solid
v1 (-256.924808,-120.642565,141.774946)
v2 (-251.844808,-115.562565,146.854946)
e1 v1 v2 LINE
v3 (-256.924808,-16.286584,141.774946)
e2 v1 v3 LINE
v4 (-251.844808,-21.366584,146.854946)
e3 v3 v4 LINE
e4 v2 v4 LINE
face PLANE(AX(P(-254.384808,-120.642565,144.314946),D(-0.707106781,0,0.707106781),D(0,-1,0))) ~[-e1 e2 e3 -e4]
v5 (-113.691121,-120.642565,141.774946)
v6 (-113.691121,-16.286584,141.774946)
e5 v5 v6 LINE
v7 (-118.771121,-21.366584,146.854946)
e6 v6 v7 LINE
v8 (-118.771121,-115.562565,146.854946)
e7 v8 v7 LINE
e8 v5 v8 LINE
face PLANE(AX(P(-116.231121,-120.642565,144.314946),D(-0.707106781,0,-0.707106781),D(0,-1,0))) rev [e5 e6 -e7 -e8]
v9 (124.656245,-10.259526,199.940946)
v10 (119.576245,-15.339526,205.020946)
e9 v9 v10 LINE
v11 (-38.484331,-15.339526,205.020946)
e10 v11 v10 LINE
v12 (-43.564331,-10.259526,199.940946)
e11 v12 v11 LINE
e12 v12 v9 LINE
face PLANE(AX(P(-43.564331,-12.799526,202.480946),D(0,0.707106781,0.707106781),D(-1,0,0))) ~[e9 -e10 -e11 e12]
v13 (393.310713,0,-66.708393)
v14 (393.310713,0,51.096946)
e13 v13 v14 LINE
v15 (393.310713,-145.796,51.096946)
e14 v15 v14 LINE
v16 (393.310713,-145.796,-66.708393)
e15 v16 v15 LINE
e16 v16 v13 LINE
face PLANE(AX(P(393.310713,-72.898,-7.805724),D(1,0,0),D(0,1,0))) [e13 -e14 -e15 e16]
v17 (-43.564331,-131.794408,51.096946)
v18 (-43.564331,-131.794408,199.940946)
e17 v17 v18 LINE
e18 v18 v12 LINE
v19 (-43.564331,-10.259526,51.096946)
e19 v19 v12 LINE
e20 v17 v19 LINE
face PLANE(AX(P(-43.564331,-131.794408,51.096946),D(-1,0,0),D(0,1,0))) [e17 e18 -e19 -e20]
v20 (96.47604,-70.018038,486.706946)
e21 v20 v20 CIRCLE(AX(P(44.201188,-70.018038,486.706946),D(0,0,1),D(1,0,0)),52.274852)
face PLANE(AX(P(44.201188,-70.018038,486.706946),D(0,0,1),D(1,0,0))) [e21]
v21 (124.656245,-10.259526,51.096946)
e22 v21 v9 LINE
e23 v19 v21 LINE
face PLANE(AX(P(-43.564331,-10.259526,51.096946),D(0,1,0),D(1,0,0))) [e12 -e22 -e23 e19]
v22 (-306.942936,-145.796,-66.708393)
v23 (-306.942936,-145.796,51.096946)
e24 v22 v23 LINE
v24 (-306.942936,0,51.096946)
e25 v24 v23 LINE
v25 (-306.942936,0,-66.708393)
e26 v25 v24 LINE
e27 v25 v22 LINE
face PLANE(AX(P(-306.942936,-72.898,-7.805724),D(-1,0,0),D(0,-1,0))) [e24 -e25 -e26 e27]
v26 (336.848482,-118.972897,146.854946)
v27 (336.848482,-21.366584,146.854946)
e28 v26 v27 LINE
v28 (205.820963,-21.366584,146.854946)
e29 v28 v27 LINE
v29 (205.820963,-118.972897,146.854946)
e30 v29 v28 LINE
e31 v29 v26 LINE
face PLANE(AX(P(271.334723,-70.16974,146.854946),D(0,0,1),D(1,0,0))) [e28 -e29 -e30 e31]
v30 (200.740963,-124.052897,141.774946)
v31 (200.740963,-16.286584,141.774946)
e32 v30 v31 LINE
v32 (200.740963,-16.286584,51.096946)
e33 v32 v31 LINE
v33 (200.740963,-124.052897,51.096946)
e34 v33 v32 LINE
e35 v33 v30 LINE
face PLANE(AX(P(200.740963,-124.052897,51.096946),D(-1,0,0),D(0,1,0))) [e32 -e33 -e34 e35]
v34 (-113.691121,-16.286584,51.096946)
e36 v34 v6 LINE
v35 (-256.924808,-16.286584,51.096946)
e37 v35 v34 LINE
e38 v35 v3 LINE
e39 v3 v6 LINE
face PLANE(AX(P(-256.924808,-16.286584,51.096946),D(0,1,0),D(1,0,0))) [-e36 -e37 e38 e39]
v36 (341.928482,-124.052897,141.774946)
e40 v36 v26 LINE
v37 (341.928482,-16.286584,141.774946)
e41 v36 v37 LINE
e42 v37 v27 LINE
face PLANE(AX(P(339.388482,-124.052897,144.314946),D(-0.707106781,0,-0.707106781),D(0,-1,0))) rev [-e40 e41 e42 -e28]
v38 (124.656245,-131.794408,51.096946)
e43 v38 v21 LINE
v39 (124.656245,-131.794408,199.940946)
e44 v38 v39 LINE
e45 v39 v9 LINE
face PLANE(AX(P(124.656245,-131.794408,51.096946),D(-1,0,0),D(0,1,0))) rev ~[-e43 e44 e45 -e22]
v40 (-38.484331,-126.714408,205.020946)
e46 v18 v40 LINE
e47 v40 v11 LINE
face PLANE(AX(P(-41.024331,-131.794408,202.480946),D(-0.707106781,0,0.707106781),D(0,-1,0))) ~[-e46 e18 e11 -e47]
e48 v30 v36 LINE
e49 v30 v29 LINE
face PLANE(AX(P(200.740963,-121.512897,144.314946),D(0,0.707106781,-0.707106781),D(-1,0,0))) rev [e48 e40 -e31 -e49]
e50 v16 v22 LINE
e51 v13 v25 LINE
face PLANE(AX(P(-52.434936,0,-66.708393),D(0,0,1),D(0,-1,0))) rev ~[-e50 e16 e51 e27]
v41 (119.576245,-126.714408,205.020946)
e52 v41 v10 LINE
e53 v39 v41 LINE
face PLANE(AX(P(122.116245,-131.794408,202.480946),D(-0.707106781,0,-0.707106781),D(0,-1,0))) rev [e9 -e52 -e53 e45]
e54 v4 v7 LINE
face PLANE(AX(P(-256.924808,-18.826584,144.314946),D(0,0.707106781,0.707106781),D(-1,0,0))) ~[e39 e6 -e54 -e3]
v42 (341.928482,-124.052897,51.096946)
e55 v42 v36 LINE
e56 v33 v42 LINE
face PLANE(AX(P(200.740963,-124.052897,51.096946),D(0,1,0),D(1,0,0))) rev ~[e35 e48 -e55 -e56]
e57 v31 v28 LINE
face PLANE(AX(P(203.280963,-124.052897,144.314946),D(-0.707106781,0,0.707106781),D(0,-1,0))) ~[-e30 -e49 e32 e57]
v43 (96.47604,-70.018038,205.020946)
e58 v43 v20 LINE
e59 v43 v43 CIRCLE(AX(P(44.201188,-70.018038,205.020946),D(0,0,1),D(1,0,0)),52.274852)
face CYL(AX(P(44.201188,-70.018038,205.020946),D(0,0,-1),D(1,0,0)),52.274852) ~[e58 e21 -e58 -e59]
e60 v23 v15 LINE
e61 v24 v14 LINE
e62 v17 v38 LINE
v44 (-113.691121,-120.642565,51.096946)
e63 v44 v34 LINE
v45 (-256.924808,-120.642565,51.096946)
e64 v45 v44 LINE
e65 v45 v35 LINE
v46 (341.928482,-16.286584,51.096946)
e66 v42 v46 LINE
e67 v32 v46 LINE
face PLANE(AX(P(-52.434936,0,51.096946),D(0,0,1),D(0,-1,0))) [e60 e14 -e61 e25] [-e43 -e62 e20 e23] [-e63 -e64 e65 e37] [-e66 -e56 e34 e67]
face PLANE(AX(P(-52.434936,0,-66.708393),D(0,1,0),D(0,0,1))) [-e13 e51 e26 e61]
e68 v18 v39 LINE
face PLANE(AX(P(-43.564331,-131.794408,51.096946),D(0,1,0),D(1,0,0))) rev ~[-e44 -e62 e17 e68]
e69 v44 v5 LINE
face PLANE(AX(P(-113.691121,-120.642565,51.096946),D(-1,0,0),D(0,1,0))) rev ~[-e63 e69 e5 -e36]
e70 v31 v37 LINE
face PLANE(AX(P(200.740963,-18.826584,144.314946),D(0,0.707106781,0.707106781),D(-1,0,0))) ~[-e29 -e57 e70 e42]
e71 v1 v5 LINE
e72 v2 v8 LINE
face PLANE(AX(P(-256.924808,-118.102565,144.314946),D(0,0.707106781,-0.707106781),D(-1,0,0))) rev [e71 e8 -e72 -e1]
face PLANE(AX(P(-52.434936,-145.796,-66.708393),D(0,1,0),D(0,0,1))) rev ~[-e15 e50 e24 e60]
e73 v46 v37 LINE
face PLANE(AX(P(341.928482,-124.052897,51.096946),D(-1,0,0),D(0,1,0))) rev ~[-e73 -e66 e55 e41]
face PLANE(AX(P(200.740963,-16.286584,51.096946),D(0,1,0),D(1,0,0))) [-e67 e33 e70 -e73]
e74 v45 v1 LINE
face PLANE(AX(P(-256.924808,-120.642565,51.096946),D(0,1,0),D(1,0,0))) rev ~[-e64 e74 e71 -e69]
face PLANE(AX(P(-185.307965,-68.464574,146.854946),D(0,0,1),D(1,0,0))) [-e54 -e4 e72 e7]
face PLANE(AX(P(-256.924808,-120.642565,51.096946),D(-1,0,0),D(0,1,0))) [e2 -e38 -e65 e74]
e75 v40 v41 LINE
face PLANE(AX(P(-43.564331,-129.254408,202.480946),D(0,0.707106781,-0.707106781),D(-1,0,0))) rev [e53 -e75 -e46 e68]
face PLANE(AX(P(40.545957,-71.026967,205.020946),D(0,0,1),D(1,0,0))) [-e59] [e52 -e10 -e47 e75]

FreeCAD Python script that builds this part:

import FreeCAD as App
import Part
import Sketcher

V = App.Vector
Q = App.Units.Quantity


def edges_at(feature, points):
    """Names of the edges that pass closest to the given points."""
    edges = feature.Shape.Edges
    near = lambda p: min(range(len(edges)), key=lambda i: edges[i].distToShape(Part.Vertex(*p))[0])
    return sorted({f"Edge{near(p) + 1}" for p in points})

doc = App.newDocument("Part")
params = doc.addObject("Spreadsheet::Sheet", "Params")
for row, (alias, value) in enumerate([
    ("pad1_length", "5.74 in"),
    ("sketch2_width", "5.74 in"),
    ("pad2_length", "3.54 in"),
    ("pad3_length", "6.06 in"),
    ("chamfer_size", "0.2 in"),
    ("sketch4_width", "5.74 in"),
    ("pad4_length", "10.02 in"),
    ("sketch5_width", "5.74 in"),
    ("pad5_length", "10.02 in"),
    ("pad6_length", "3.77 in"),
    ("chamfer2_size", "0.2 in"),
    ("pad7_length", "11.09 in"),
], start=1):
    params.set(f"A{row}", alias)
    params.set(f"B{row}", "=" + value)
    params.setAlias(f"B{row}", alias)

body = doc.addObject("PartDesign::Body", "Body")

# Sketch on XZ plane
sketch1 = doc.addObject("Sketcher::SketchObject", "Sketch")
body.addObject(sketch1)
sketch1.AttachmentSupport = (doc.XZ_Plane, [""])
sketch1.MapMode = "FlatFace"
sketch1.addGeometry(Part.LineSegment(V(-52.434936, 51.096946, 0), V(-52.434936, -66.708393, 0)), False)
sketch1.addGeometry(Part.LineSegment(V(-52.434936, -66.708393, 0), V(48.886713, -66.708393, 0)), False)
sketch1.addGeometry(Part.LineSegment(V(48.886713, -66.708393, 0), V(48.886713, 51.096946, 0)), False)
sketch1.addGeometry(Part.LineSegment(V(48.886713, 51.096946, 0), V(-52.434936, 51.096946, 0)), False)
sketch1.addConstraint(Sketcher.Constraint("Coincident", 0, 2, 1, 1))
sketch1.addConstraint(Sketcher.Constraint("Coincident", 1, 2, 2, 1))
sketch1.addConstraint(Sketcher.Constraint("Coincident", 2, 2, 3, 1))
sketch1.addConstraint(Sketcher.Constraint("Coincident", 3, 2, 0, 1))
sketch1.addConstraint(Sketcher.Constraint("Vertical", 0))
sketch1.addConstraint(Sketcher.Constraint("Horizontal", 1))
sketch1.addConstraint(Sketcher.Constraint("Vertical", 2))
sketch1.addConstraint(Sketcher.Constraint("Horizontal", 3))
sketch1.addConstraint(Sketcher.Constraint("DistanceX", 1, 1, 1, 2, Q("101.321649 mm")))
sketch1.addConstraint(Sketcher.Constraint("DistanceY", 0, 2, 0, 1, Q("117.805339 mm")))
sketch1.addConstraint(Sketcher.Constraint("DistanceX", 0, 2, -1, 1, Q("52.434936 mm")))
sketch1.addConstraint(Sketcher.Constraint("DistanceY", 0, 2, -1, 1, Q("66.708393 mm")))
pad1 = doc.addObject("PartDesign::Pad", "Pad")
body.addObject(pad1)
pad1.Profile = sketch1
pad1.setExpression("Length", "Params.pad1_length")

# Sketch on YZ plane
sketch2 = doc.addObject("Sketcher::SketchObject", "Sketch001")
body.addObject(sketch2)
sketch2.AttachmentSupport = (doc.YZ_Plane, [""])
sketch2.MapMode = "FlatFace"
sketch2.AttachmentOffset = App.Placement(V(0, 0, 48.886713), App.Rotation())
sketch2.addGeometry(Part.LineSegment(V(-145.796, 51.096946, 0), V(-145.796, -66.708393, 0)), False)
sketch2.addGeometry(Part.LineSegment(V(-145.796, -66.708393, 0), V(0, -66.708393, 0)), False)
sketch2.addGeometry(Part.LineSegment(V(0, -66.708393, 0), V(0, 51.096946, 0)), False)
sketch2.addGeometry(Part.LineSegment(V(0, 51.096946, 0), V(-145.796, 51.096946, 0)), False)
sketch2.addConstraint(Sketcher.Constraint("Coincident", 0, 2, 1, 1))
sketch2.addConstraint(Sketcher.Constraint("Coincident", 1, 2, 2, 1))
sketch2.addConstraint(Sketcher.Constraint("Coincident", 2, 2, 3, 1))
sketch2.addConstraint(Sketcher.Constraint("Coincident", 3, 2, 0, 1))
sketch2.addConstraint(Sketcher.Constraint("Vertical", 0))
sketch2.addConstraint(Sketcher.Constraint("Horizontal", 1))
sketch2.addConstraint(Sketcher.Constraint("Vertical", 2))
sketch2.addConstraint(Sketcher.Constraint("Horizontal", 3))
sketch2.addConstraint(Sketcher.Constraint("PointOnObject", 1, 2, -2))
sketch2.addConstraint(Sketcher.Constraint("DistanceX", 1, 1, 1, 2, Q("5.74 in")))
sketch2.addConstraint(Sketcher.Constraint("DistanceY", 0, 2, 0, 1, Q("117.805339 mm")))
sketch2.addConstraint(Sketcher.Constraint("DistanceY", 0, 2, -1, 1, Q("66.708393 mm")))
sketch2.setExpression("Constraints[9]", "Params.sketch2_width")
pad2 = doc.addObject("PartDesign::Pad", "Pad001")
body.addObject(pad2)
pad2.Profile = sketch2
pad2.setExpression("Length", "Params.pad2_length")

# Sketch on XY plane
sketch3 = doc.addObject("Sketcher::SketchObject", "Sketch002")
body.addObject(sketch3)
sketch3.AttachmentSupport = (doc.XY_Plane, [""])
sketch3.MapMode = "FlatFace"
sketch3.AttachmentOffset = App.Placement(V(0, 0, 51.096946), App.Rotation())
sketch3.addGeometry(Part.LineSegment(V(-43.564331, -10.259526, 0), V(-43.564331, -131.794408, 0)), False)
sketch3.addGeometry(Part.LineSegment(V(-43.564331, -131.794408, 0), V(124.656245, -131.794408, 0)), False)
sketch3.addGeometry(Part.LineSegment(V(124.656245, -131.794408, 0), V(124.656245, -10.259526, 0)), False)
sketch3.addGeometry(Part.LineSegment(V(124.656245, -10.259526, 0), V(-43.564331, -10.259526, 0)), False)
sketch3.addConstraint(Sketcher.Constraint("Coincident", 0, 2, 1, 1))
sketch3.addConstraint(Sketcher.Constraint("Coincident", 1, 2, 2, 1))
sketch3.addConstraint(Sketcher.Constraint("Coincident", 2, 2, 3, 1))
sketch3.addConstraint(Sketcher.Constraint("Coincident", 3, 2, 0, 1))
sketch3.addConstraint(Sketcher.Constraint("Vertical", 0))
sketch3.addConstraint(Sketcher.Constraint("Horizontal", 1))
sketch3.addConstraint(Sketcher.Constraint("Vertical", 2))
sketch3.addConstraint(Sketcher.Constraint("Horizontal", 3))
sketch3.addConstraint(Sketcher.Constraint("DistanceX", 1, 1, 1, 2, Q("168.220576 mm")))
sketch3.addConstraint(Sketcher.Constraint("DistanceY", 0, 2, 0, 1, Q("121.534882 mm")))
sketch3.addConstraint(Sketcher.Constraint("DistanceX", 0, 2, -1, 1, Q("43.564331 mm")))
sketch3.addConstraint(Sketcher.Constraint("DistanceY", 0, 2, -1, 1, Q("131.794408 mm")))
pad3 = doc.addObject("PartDesign::Pad", "Pad002")
body.addObject(pad3)
pad3.Profile = sketch3
pad3.setExpression("Length", "Params.pad3_length")
doc.recompute()

chamfer = doc.addObject("PartDesign::Chamfer", "Chamfer")
body.addObject(chamfer)
chamfer.Base = (pad3, edges_at(pad3, [
    (40.546, -131.794, 205.021),
    (124.656, -71.027, 205.021),
    (40.546, -10.26, 205.021),
    (-43.564, -71.027, 205.021),
]))
chamfer.setExpression("Size", "Params.chamfer_size")

# Sketch on YZ plane
sketch4 = doc.addObject("Sketcher::SketchObject", "Sketch003")
body.addObject(sketch4)
sketch4.AttachmentSupport = (doc.YZ_Plane, [""])
sketch4.MapMode = "FlatFace"
sketch4.AttachmentOffset = App.Placement(V(0, 0, 138.802713), App.Rotation())
sketch4.addGeometry(Part.LineSegment(V(-145.796, 51.096946, 0), V(-145.796, -66.708393, 0)), False)
sketch4.addGeometry(Part.LineSegment(V(-145.796, -66.708393, 0), V(0, -66.708393, 0)), False)
sketch4.addGeometry(Part.LineSegment(V(0, -66.708393, 0), V(0, 51.096946, 0)), False)
sketch4.addGeometry(Part.LineSegment(V(0, 51.096946, 0), V(-145.796, 51.096946, 0)), False)
sketch4.addConstraint(Sketcher.Constraint("Coincident", 0, 2, 1, 1))
sketch4.addConstraint(Sketcher.Constraint("Coincident", 1, 2, 2, 1))
sketch4.addConstraint(Sketcher.Constraint("Coincident", 2, 2, 3, 1))
sketch4.addConstraint(Sketcher.Constraint("Coincident", 3, 2, 0, 1))
sketch4.addConstraint(Sketcher.Constraint("Vertical", 0))
sketch4.addConstraint(Sketcher.Constraint("Horizontal", 1))
sketch4.addConstraint(Sketcher.Constraint("Vertical", 2))
sketch4.addConstraint(Sketcher.Constraint("Horizontal", 3))
sketch4.addConstraint(Sketcher.Constraint("PointOnObject", 1, 2, -2))
sketch4.addConstraint(Sketcher.Constraint("DistanceX", 1, 1, 1, 2, Q("5.74 in")))
sketch4.addConstraint(Sketcher.Constraint("DistanceY", 0, 2, 0, 1, Q("117.805339 mm")))
sketch4.addConstraint(Sketcher.Constraint("DistanceY", 0, 2, -1, 1, Q("66.708393 mm")))
sketch4.setExpression("Constraints[9]", "Params.sketch4_width")
pad4 = doc.addObject("PartDesign::Pad", "Pad003")
body.addObject(pad4)
pad4.Profile = sketch4
pad4.setExpression("Length", "Params.pad4_length")

# Sketch on YZ plane
sketch5 = doc.addObject("Sketcher::SketchObject", "Sketch004")
body.addObject(sketch5)
sketch5.AttachmentSupport = (doc.YZ_Plane, [""])
sketch5.MapMode = "FlatFace"
sketch5.AttachmentOffset = App.Placement(V(0, 0, -52.434936), App.Rotation())
sketch5.addGeometry(Part.LineSegment(V(0, 51.096946, 0), V(0, -66.708393, 0)), False)
sketch5.addGeometry(Part.LineSegment(V(0, -66.708393, 0), V(-145.796, -66.708393, 0)), False)
sketch5.addGeometry(Part.LineSegment(V(-145.796, -66.708393, 0), V(-145.796, 51.096946, 0)), False)
sketch5.addGeometry(Part.LineSegment(V(-145.796, 51.096946, 0), V(0, 51.096946, 0)), False)
sketch5.addConstraint(Sketcher.Constraint("Coincident", 0, 2, 1, 1))
sketch5.addConstraint(Sketcher.Constraint("Coincident", 1, 2, 2, 1))
sketch5.addConstraint(Sketcher.Constraint("Coincident", 2, 2, 3, 1))
sketch5.addConstraint(Sketcher.Constraint("Coincident", 3, 2, 0, 1))
sketch5.addConstraint(Sketcher.Constraint("Vertical", 0))
sketch5.addConstraint(Sketcher.Constraint("Horizontal", 1))
sketch5.addConstraint(Sketcher.Constraint("Vertical", 2))
sketch5.addConstraint(Sketcher.Constraint("Horizontal", 3))
sketch5.addConstraint(Sketcher.Constraint("PointOnObject", 0, 2, -2))
sketch5.addConstraint(Sketcher.Constraint("DistanceX", 1, 2, 1, 1, Q("5.74 in")))
sketch5.addConstraint(Sketcher.Constraint("DistanceY", 0, 2, 0, 1, Q("117.805339 mm")))
sketch5.addConstraint(Sketcher.Constraint("DistanceY", 0, 2, -1, 1, Q("66.708393 mm")))
sketch5.setExpression("Constraints[9]", "Params.sketch5_width")
pad5 = doc.addObject("PartDesign::Pad", "Pad004")
body.addObject(pad5)
pad5.Profile = sketch5
pad5.setExpression("Length", "Params.pad5_length")
pad5.Reversed = True

# Sketch on XY plane
sketch6 = doc.addObject("Sketcher::SketchObject", "Sketch005")
body.addObject(sketch6)
sketch6.AttachmentSupport = (doc.XY_Plane, [""])
sketch6.MapMode = "FlatFace"
sketch6.AttachmentOffset = App.Placement(V(0, 0, 51.096946), App.Rotation())
sketch6.addGeometry(Part.LineSegment(V(-256.924808, -16.286584, 0), V(-256.924808, -120.642565, 0)), False)
sketch6.addGeometry(Part.LineSegment(V(-256.924808, -120.642565, 0), V(-113.691121, -120.642565, 0)), False)
sketch6.addGeometry(Part.LineSegment(V(-113.691121, -120.642565, 0), V(-113.691121, -16.286584, 0)), False)
sketch6.addGeometry(Part.LineSegment(V(-113.691121, -16.286584, 0), V(-256.924808, -16.286584, 0)), False)
sketch6.addGeometry(Part.LineSegment(V(200.740963, -16.286584, 0), V(200.740963, -124.052897, 0)), False)
sketch6.addGeometry(Part.LineSegment(V(200.740963, -124.052897, 0), V(341.928482, -124.052897, 0)), False)
sketch6.addGeometry(Part.LineSegment(V(341.928482, -124.052897, 0), V(341.928482, -16.286584, 0)), False)
sketch6.addGeometry(Part.LineSegment(V(341.928482, -16.286584, 0), V(200.740963, -16.286584, 0)), False)
sketch6.addConstraint(Sketcher.Constraint("Coincident", 0, 2, 1, 1))
sketch6.addConstraint(Sketcher.Constraint("Coincident", 1, 2, 2, 1))
sketch6.addConstraint(Sketcher.Constraint("Coincident", 2, 2, 3, 1))
sketch6.addConstraint(Sketcher.Constraint("Coincident", 3, 2, 0, 1))
sketch6.addConstraint(Sketcher.Constraint("Coincident", 4, 2, 5, 1))
sketch6.addConstraint(Sketcher.Constraint("Coincident", 5, 2, 6, 1))
sketch6.addConstraint(Sketcher.Constraint("Coincident", 6, 2, 7, 1))
sketch6.addConstraint(Sketcher.Constraint("Coincident", 7, 2, 4, 1))
sketch6.addConstraint(Sketcher.Constraint("Vertical", 0))
sketch6.addConstraint(Sketcher.Constraint("Horizontal", 1))
sketch6.addConstraint(Sketcher.Constraint("Vertical", 2))
sketch6.addConstraint(Sketcher.Constraint("Horizontal", 3))
sketch6.addConstraint(Sketcher.Constraint("Vertical", 4))
sketch6.addConstraint(Sketcher.Constraint("Horizontal", 5))
sketch6.addConstraint(Sketcher.Constraint("Vertical", 6))
sketch6.addConstraint(Sketcher.Constraint("Horizontal", 7))
sketch6.addConstraint(Sketcher.Constraint("Horizontal", 3, 2, 6, 2))
sketch6.addConstraint(Sketcher.Constraint("DistanceX", 5, 1, 5, 2, Q("141.187519 mm")))
sketch6.addConstraint(Sketcher.Constraint("DistanceY", 0, 2, 0, 1, Q("104.355982 mm")))
sketch6.addConstraint(Sketcher.Constraint("DistanceX", 1, 1, 1, 2, Q("143.233687 mm")))
sketch6.addConstraint(Sketcher.Constraint("DistanceY", 4, 2, 4, 1, Q("107.766313 mm")))
sketch6.addConstraint(Sketcher.Constraint("DistanceX", 0, 2, -1, 1, Q("256.924808 mm")))
sketch6.addConstraint(Sketcher.Constraint("DistanceX", 0, 2, 4, 2, Q("457.665771 mm")))
sketch6.addConstraint(Sketcher.Constraint("DistanceY", 0, 2, -1, 1, Q("120.642565 mm")))
pad6 = doc.addObject("PartDesign::Pad", "Pad005")
body.addObject(pad6)
pad6.Profile = sketch6
pad6.setExpression("Length", "Params.pad6_length")
doc.recompute()

chamfer2 = doc.addObject("PartDesign::Chamfer", "Chamfer001")
body.addObject(chamfer2)
chamfer2.Base = (pad6, edges_at(pad6, [
    (-185.308, -16.287, 146.855),
    (-113.691, -68.465, 146.855),
    (-185.308, -120.643, 146.855),
    (-256.925, -68.465, 146.855),
    (271.335, -16.287, 146.855),
    (200.741, -70.17, 146.855),
    (341.928, -70.17, 146.855),
    (271.335, -124.053, 146.855),
]))
chamfer2.setExpression("Size", "Params.chamfer2_size")

# Sketch on XY plane
sketch7 = doc.addObject("Sketcher::SketchObject", "Sketch006")
body.addObject(sketch7)
sketch7.AttachmentSupport = (doc.XY_Plane, [""])
sketch7.MapMode = "FlatFace"
sketch7.AttachmentOffset = App.Placement(V(0, 0, 205.020946), App.Rotation())
sketch7.addGeometry(Part.Circle(V(44.201188, -70.018038, 0), V(0, 0, 1), 52.274852), False)
sketch7.addConstraint(Sketcher.Constraint("Diameter", 0, Q("104.549705 mm")))
sketch7.addConstraint(Sketcher.Constraint("DistanceY", 0, 3, -1, 1, Q("70.018038 mm")))
sketch7.addConstraint(Sketcher.Constraint("DistanceX", -1, 1, 0, 3, Q("44.201188 mm")))
pad7 = doc.addObject("PartDesign::Pad", "Pad006")
body.addObject(pad7)
pad7.Profile = sketch7
pad7.setExpression("Length", "Params.pad7_length")

doc.recompute()
